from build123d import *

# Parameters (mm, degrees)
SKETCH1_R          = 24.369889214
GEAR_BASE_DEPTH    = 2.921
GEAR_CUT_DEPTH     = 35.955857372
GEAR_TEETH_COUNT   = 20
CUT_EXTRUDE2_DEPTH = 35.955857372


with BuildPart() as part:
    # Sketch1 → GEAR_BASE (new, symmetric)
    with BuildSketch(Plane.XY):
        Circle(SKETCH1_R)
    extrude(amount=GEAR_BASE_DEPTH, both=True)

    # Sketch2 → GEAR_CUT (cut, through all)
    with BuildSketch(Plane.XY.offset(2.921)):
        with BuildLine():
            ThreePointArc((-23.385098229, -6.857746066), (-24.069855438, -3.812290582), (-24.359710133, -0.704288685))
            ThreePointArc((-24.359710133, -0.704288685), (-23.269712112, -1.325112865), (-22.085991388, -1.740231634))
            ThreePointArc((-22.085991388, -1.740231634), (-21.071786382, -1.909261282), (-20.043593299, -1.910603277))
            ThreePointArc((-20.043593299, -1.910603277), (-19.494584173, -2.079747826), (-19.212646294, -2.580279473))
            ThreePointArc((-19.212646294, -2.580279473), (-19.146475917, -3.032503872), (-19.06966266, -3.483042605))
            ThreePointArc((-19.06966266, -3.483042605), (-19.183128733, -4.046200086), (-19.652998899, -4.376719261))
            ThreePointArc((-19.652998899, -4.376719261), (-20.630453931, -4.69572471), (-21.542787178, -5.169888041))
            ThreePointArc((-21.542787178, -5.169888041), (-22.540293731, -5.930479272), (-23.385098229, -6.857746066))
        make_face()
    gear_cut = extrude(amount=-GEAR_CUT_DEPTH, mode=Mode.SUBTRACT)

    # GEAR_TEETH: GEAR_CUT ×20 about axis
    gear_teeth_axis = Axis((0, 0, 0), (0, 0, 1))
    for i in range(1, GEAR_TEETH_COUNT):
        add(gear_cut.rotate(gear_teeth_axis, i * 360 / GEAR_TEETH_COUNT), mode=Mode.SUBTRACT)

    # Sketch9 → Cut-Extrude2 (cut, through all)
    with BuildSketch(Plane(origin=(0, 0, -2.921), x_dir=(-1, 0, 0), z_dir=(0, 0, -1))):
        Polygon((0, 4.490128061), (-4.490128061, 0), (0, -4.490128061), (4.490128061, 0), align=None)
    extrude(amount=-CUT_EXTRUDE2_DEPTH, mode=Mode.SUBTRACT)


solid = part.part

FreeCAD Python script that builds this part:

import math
import FreeCAD as App
import Part
import Sketcher

V = App.Vector
Q = App.Units.Quantity

doc = App.newDocument("Part")
body = doc.addObject("PartDesign::Body", "Body")

# Sketch on XY plane
sketch1 = doc.addObject("Sketcher::SketchObject", "Sketch")
body.addObject(sketch1)
sketch1.AttachmentSupport = (doc.XY_Plane, [""])
sketch1.MapMode = "FlatFace"
sketch1.addGeometry(Part.Circle(V(0, 0, 0), V(0, 0, 1), 24.369889), False)
sketch1.addConstraint([
    Sketcher.Constraint("Coincident", 0, 3, -1, 1),
    Sketcher.Constraint("Diameter", 0, Q("48.739778 mm")),
])
pad1 = doc.addObject("PartDesign::Pad", "Pad")
body.addObject(pad1)
pad1.Profile = sketch1
pad1.Length = Q("0.23 in")
pad1.Midplane = True

# Sketch on XY plane
sketch2 = doc.addObject("Sketcher::SketchObject", "Sketch001")
body.addObject(sketch2)
sketch2.AttachmentSupport = (doc.XY_Plane, [""])
sketch2.MapMode = "FlatFace"
sketch2.AttachmentOffset = App.Placement(V(0, 0, 0.115 * 25.4), App.Rotation())
sketch2.addGeometry([
    Part.ArcOfCircle(Part.Circle(V(0, 0, 0), V(0, 0, 1), 24.369889), math.radians(-178.343924), math.radians(-163.656076)),  # 0
    Part.ArcOfCircle(Part.Circle(V(-17.838028, -11.063041, 0), V(0, 0, 1), 6.960927), math.radians(122.15572), math.radians(142.833831)),  # 1
    Part.ArcOfCircle(Part.Circle(V(-18.199019, -10.488814, 0), V(0, 0, 1), 6.282655), math.radians(103.381137), math.radians(122.15572)),  # 2
    Part.ArcOfCircle(Part.Circle(V(-19.832449, -3.622364, 0), V(0, 0, 1), 0.775406), math.radians(-76.618863), math.radians(10.350883)),  # 3
    Part.ArcOfCircle(Part.Circle(V(-0.000001, 0, 0), V(0, 0, 1), 19.385138), math.radians(-172.350883), math.radians(-169.649117)),  # 4
    Part.ArcOfCircle(Part.Circle(V(-19.981152, -2.683491, 0), V(0, 0, 1), 0.775406), math.radians(7.649117), math.radians(94.618863)),  # 5
    Part.ArcOfCircle(Part.Circle(V(-20.549517, 4.351649, 0), V(0, 0, 1), 6.282655), math.radians(-104.15572), math.radians(-85.381137)),  # 6
    Part.ArcOfCircle(Part.Circle(V(-20.383641, 5.009324, 0), V(0, 0, 1), 6.960927), math.radians(-124.833831), math.radians(-104.15572)),  # 7
], False)
sketch2.addConstraint([
    Sketcher.Constraint("Coincident", 0, 2, 1, 2),
    Sketcher.Constraint("Coincident", 1, 1, 2, 2),
    Sketcher.Constraint("Coincident", 2, 1, 3, 1),
    Sketcher.Constraint("Coincident", 3, 2, 4, 2),
    Sketcher.Constraint("Coincident", 4, 1, 5, 1),
    Sketcher.Constraint("Coincident", 5, 2, 6, 2),
    Sketcher.Constraint("Coincident", 6, 1, 7, 2),
    Sketcher.Constraint("Coincident", 7, 1, 0, 1),
    Sketcher.Constraint("Coincident", 0, 3, -1, 1),
    Sketcher.Constraint("Coincident", 4, 3, -1, 1),
    Sketcher.Constraint("Radius", 0, Q("24.369889 mm")),
    Sketcher.Constraint("Radius", 4, Q("19.385138 mm")),
    Sketcher.Constraint("Radius", 1, Q("6.960927 mm")),
    Sketcher.Constraint("Radius", 2, Q("6.282655 mm")),
    Sketcher.Constraint("Radius", 3, Q("0.775406 mm")),
    Sketcher.Constraint("Radius", 5, Q("0.775406 mm")),
    Sketcher.Constraint("Radius", 6, Q("6.282655 mm")),
    Sketcher.Constraint("Radius", 7, Q("6.960927 mm")),
    Sketcher.Constraint("DistanceX", 0, 2, -1, 1, Q("23.385098 mm")),
    Sketcher.Constraint("DistanceX", 2, 1, -1, 1, Q("19.652999 mm")),
    Sketcher.Constraint("DistanceX", 6, 3, 2, 3, Q("2.350498 mm")),
    Sketcher.Constraint("DistanceX", 6, 1, 5, 2, Q("2.042398 mm")),
    Sketcher.Constraint("DistanceY", 5, 3, 7, 1, Q("1.979202 mm")),
    Sketcher.Constraint("DistanceY", 1, 1, 7, 1, Q("4.465599 mm")),
    Sketcher.Constraint("DistanceY", 1, 3, -1, 1, Q("11.063041 mm")),
    Sketcher.Constraint("DistanceX", 2, 3, -1, 1, Q("18.199019 mm")),
    Sketcher.Constraint("DistanceY", 5, 3, -1, 1, Q("2.683491 mm")),
    Sketcher.Constraint("DistanceY", 4, 1, -1, 1, Q("2.580279 mm")),
    Sketcher.Constraint("DistanceX", 6, 1, -1, 1, Q("22.085991 mm")),
    Sketcher.Constraint("DistanceY", 3, 3, 3, 2, Q("0.139322 mm")),
])
pocket1 = doc.addObject("PartDesign::Pocket", "Pocket")
body.addObject(pocket1)
pocket1.Profile = sketch2
pocket1.Type = "ThroughAll"
doc.recompute()

polarpattern = doc.addObject("PartDesign::PolarPattern", "PolarPattern")
body.addObject(polarpattern)
polarpattern.Originals = [pocket1]
polarpattern.Axis = (doc.Z_Axis, [""])
polarpattern.Angle = 360
polarpattern.Occurrences = 20
body.Tip = polarpattern

# Sketch on XY plane
sketch3 = doc.addObject("Sketcher::SketchObject", "Sketch002")
body.addObject(sketch3)
sketch3.AttachmentSupport = (doc.XY_Plane, [""])
sketch3.MapMode = "FlatFace"
sketch3.AttachmentOffset = App.Placement(V(0, 0, -0.115 * 25.4), App.Rotation())
sketch3.addGeometry([
    Part.LineSegment(V(0, 4.490128, 0), V(4.490128, 0, 0)),
    Part.LineSegment(V(4.490128, 0, 0), V(0, -4.490128, 0)),
    Part.LineSegment(V(0, -4.490128, 0), V(-4.490128, 0, 0)),
    Part.LineSegment(V(-4.490128, 0, 0), V(0, 4.490128, 0)),
], False)
sketch3.addConstraint([
    Sketcher.Constraint("Coincident", 0, 2, 1, 1),
    Sketcher.Constraint("Coincident", 1, 2, 2, 1),
    Sketcher.Constraint("Coincident", 2, 2, 3, 1),
    Sketcher.Constraint("Coincident", 3, 2, 0, 1),
    Sketcher.Constraint("Symmetric", 0, 2, 2, 2, -1, 1),
    Sketcher.Constraint("Symmetric", 1, 2, 3, 2, -1, 1),
    Sketcher.Constraint("PointOnObject", 0, 2, -1),
    Sketcher.Constraint("PointOnObject", 1, 2, -2),
    Sketcher.Constraint("Perpendicular", 0, 1),
    Sketcher.Constraint("Distance", 0, Q("0.25 in")),
])
pocket2 = doc.addObject("PartDesign::Pocket", "Pocket001")
body.addObject(pocket2)
pocket2.Profile = sketch3
pocket2.Type = "ThroughAll"
pocket2.Reversed = True

doc.recompute()
